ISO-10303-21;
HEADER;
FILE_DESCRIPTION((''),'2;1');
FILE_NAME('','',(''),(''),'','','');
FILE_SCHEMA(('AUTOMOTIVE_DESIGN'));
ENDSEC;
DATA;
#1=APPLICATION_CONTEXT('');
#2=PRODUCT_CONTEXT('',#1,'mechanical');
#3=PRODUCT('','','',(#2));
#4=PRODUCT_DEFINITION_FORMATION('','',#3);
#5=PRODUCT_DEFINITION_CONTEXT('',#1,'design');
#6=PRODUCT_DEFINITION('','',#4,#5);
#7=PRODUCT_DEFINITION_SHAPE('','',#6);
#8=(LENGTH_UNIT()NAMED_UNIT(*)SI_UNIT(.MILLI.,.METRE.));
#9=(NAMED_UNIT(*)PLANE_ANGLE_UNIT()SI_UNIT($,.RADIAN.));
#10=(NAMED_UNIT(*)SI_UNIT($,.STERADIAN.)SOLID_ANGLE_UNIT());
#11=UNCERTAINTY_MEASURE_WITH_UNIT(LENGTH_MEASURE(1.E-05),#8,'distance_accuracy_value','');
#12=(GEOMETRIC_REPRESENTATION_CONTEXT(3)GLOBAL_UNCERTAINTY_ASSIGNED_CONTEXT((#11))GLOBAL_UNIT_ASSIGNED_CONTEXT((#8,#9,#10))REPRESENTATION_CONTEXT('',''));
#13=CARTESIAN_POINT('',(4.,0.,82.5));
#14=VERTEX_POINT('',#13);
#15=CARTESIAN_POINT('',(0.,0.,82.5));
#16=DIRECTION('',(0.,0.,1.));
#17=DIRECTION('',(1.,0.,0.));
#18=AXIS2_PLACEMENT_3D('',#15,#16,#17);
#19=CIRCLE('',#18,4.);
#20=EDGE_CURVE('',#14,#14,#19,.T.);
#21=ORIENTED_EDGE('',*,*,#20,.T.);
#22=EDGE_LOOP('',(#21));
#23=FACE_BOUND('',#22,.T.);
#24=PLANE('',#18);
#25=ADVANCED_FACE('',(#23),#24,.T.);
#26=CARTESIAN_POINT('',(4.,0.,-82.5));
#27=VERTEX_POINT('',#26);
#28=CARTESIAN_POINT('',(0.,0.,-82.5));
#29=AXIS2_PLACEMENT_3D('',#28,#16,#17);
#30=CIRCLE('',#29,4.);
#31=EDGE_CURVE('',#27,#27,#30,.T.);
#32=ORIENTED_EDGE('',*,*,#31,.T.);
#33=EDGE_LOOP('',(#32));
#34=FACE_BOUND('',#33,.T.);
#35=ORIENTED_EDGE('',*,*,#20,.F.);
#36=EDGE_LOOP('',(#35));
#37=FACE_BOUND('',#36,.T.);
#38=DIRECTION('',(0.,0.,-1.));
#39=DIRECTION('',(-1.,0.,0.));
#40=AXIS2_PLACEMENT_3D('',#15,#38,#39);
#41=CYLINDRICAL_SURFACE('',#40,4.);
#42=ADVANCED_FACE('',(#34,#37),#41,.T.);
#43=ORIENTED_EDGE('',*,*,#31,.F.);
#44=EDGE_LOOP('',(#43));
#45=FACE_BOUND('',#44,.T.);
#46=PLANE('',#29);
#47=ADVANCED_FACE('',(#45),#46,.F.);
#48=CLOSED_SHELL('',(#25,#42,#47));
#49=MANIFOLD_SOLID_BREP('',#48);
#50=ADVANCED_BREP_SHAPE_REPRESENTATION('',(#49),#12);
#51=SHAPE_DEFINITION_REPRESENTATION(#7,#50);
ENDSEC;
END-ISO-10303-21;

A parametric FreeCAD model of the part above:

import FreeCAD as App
import Part
import Sketcher

doc = App.newDocument("Part")
body = doc.addObject("PartDesign::Body", "Body")

# Sketch on XY plane
sketch1 = body.newObject("Sketcher::SketchObject", "Sketch")
sketch1.AttachmentSupport = (doc.getObject("XY_Plane"), [""])
sketch1.MapMode = "FlatFace"
sketch1.addGeometry(Part.Circle(App.Vector(0, 0, 0), App.Vector(0, 0, 1), 4), False)
sketch1.addConstraint([
    Sketcher.Constraint("Coincident", 0, 3, -1, 1),
    Sketcher.Constraint("Diameter", 0, 8.0),
])
pad1 = body.newObject("PartDesign::Pad", "Pad")
pad1.Profile = sketch1
pad1.Length = 165
pad1.Midplane = True

doc.recompute()
